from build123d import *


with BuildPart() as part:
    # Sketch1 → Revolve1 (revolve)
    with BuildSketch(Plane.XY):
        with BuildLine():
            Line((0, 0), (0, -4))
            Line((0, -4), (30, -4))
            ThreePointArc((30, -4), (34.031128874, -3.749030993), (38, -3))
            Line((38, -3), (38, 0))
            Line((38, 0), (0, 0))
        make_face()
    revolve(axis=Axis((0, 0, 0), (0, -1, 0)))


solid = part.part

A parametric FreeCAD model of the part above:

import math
import FreeCAD as App
import Part
import Sketcher

doc = App.newDocument("Part")
body = doc.addObject("PartDesign::Body", "Body")

# Sketch on XY plane
sketch1 = body.newObject("Sketcher::SketchObject", "Sketch")
sketch1.AttachmentSupport = (doc.getObject("XY_Plane"), [""])
sketch1.MapMode = "FlatFace"
sketch1.addGeometry([
    Part.LineSegment(App.Vector(0, 0, 0), App.Vector(0, -4, 0)),  # 0
    Part.LineSegment(App.Vector(0, -4, 0), App.Vector(30, -4, 0)),  # 1
    Part.ArcOfCircle(Part.Circle(App.Vector(30, 28.5, 0), App.Vector(0, 0, 1), 32.5), math.radians(-90), math.radians(-75.75)),  # 2
    Part.LineSegment(App.Vector(38, -3, 0), App.Vector(38, 0, 0)),  # 3
    Part.LineSegment(App.Vector(38, 0, 0), App.Vector(0, 0, 0)),  # 4
], False)
sketch1.addConstraint([
    Sketcher.Constraint("Coincident", 0, 2, 1, 1),
    Sketcher.Constraint("Tangent", 1, 2, 2, 1),
    Sketcher.Constraint("Coincident", 2, 2, 3, 1),
    Sketcher.Constraint("Coincident", 3, 2, 4, 1),
    Sketcher.Constraint("Coincident", 4, 2, 0, 1),
    Sketcher.Constraint("Vertical", 0),
    Sketcher.Constraint("Horizontal", 1),
    Sketcher.Constraint("Vertical", 3),
    Sketcher.Constraint("Horizontal", 4),
    Sketcher.Constraint("Coincident", 4, 2, -1, 1),
    Sketcher.Constraint("Radius", 2, 32.5),
    Sketcher.Constraint("DistanceX", 1, 1, 1, 2, 30.0),
    Sketcher.Constraint("DistanceX", 4, 2, 4, 1, 38.0),
    Sketcher.Constraint("DistanceY", 0, 2, 0, 1, 4.0),
])
revolution = body.newObject("PartDesign::Revolution", "Revolution")
revolution.Profile = sketch1
revolution.ReferenceAxis = (sketch1, ["V_Axis"])
revolution.Angle = 360

doc.recompute()
